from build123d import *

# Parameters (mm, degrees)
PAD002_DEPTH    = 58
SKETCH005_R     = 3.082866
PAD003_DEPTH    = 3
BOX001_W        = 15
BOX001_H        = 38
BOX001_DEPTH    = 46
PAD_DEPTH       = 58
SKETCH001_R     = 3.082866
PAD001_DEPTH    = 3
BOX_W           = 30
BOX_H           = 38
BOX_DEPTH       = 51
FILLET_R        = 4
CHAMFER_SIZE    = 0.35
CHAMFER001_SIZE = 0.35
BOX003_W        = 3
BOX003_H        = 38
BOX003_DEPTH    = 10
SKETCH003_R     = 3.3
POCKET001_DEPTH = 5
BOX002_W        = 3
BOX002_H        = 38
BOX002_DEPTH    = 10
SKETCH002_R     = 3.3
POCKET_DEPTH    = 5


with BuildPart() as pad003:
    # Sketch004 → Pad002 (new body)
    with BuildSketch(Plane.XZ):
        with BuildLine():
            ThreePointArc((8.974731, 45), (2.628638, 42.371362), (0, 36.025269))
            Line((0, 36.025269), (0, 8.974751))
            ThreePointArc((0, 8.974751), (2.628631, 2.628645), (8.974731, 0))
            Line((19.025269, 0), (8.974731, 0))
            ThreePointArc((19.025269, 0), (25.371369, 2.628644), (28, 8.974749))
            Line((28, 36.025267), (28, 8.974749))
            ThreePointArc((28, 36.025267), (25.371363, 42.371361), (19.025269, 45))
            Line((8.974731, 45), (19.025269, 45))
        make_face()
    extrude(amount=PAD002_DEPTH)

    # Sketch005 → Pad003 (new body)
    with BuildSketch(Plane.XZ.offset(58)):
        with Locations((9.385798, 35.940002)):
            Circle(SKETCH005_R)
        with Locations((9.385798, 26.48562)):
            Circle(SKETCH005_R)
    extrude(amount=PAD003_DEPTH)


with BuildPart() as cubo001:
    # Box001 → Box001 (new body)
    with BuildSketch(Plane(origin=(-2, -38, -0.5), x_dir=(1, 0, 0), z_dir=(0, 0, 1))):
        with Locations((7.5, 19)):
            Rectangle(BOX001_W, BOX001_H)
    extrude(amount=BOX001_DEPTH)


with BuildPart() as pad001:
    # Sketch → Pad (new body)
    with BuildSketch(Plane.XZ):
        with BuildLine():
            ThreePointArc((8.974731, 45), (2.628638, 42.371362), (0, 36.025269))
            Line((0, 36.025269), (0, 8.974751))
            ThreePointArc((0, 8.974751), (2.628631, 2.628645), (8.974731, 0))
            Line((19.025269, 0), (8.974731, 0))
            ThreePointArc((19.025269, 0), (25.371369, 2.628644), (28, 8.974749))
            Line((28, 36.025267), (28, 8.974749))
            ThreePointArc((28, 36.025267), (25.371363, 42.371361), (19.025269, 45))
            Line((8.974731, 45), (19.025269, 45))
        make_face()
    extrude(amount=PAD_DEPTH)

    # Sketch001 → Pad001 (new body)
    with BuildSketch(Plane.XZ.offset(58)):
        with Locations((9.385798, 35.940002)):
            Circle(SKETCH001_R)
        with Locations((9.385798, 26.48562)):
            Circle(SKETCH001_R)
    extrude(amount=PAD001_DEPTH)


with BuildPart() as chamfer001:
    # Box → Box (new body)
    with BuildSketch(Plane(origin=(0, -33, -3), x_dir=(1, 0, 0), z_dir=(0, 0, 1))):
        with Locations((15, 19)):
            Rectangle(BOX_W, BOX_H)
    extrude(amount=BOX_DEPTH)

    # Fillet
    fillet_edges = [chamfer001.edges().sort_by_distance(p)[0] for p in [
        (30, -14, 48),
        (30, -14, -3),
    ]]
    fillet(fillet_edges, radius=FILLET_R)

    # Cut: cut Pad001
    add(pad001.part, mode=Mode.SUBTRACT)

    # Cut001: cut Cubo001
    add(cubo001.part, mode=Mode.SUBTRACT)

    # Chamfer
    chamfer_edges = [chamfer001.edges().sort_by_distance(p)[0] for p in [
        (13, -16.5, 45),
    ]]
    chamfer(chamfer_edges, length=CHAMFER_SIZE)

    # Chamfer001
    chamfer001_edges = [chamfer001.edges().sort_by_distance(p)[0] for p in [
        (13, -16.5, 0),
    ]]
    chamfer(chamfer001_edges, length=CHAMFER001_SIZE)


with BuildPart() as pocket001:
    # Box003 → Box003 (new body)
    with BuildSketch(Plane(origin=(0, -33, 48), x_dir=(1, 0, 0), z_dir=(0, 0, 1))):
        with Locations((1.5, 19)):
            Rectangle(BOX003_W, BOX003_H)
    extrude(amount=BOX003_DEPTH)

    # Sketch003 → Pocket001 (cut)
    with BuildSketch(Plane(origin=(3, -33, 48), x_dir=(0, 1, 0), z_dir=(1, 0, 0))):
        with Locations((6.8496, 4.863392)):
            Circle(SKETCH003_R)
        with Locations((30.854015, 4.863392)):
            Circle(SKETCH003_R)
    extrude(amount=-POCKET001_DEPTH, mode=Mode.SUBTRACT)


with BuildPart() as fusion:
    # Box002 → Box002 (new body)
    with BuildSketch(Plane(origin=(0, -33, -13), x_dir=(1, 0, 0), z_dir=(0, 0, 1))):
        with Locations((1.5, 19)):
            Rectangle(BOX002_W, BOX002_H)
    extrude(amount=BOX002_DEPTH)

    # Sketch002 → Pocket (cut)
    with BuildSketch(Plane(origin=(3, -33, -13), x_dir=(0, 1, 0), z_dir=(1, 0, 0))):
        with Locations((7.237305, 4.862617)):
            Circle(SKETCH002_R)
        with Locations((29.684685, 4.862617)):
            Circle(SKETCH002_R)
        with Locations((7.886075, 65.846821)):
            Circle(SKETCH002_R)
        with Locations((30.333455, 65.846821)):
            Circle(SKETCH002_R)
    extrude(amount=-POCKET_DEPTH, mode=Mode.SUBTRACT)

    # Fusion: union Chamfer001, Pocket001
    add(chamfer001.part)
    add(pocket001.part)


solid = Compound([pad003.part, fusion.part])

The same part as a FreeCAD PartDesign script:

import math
import FreeCAD as App
import Part
import Sketcher
from FreeCAD import Vector
Q = App.Units.Quantity


def edges_at(feature, points):
    """Names of the edges that pass closest to the given points."""
    edges = feature.Shape.Edges
    near = lambda p: min(range(len(edges)), key=lambda i: edges[i].distToShape(Part.Vertex(*p))[0])
    return sorted({f"Edge{near(p) + 1}" for p in points})

doc = App.newDocument("Part")
body = doc.addObject("PartDesign::Body", "Body")

# Sketch on XZ plane
sketch1 = doc.addObject("Sketcher::SketchObject", "Sketch")
body.addObject(sketch1)
sketch1.AttachmentSupport = (doc.XZ_Plane, [""])
sketch1.MapMode = "FlatFace"
sketch1.addGeometry(Part.ArcOfCircle(Part.Circle(Vector(9, 36, 0), Vector(0, 0, 1), 9), math.radians(90), math.radians(180)), False)
sketch1.addGeometry(Part.LineSegment(Vector(0, 36, 0), Vector(0, 9, 0)), False)
sketch1.addGeometry(Part.ArcOfCircle(Part.Circle(Vector(9, 9, 0), Vector(0, 0, 1), 9), math.radians(180), math.radians(270)), False)
sketch1.addGeometry(Part.LineSegment(Vector(9, 0, 0), Vector(19, 0, 0)), False)
sketch1.addGeometry(Part.ArcOfCircle(Part.Circle(Vector(19, 9, 0), Vector(0, 0, 1), 9), math.radians(-90), math.radians(0)), False)
sketch1.addGeometry(Part.LineSegment(Vector(28, 9, 0), Vector(28, 36, 0)), False)
sketch1.addGeometry(Part.ArcOfCircle(Part.Circle(Vector(19, 36, 0), Vector(0, 0, 1), 9), math.radians(0), math.radians(90)), False)
sketch1.addGeometry(Part.LineSegment(Vector(19, 45, 0), Vector(9, 45, 0)), False)
sketch1.addConstraint(Sketcher.Constraint("Tangent", 0, 2, 1, 1))
sketch1.addConstraint(Sketcher.Constraint("Coincident", 1, 2, 2, 1))
sketch1.addConstraint(Sketcher.Constraint("Tangent", 2, 2, 3, 1))
sketch1.addConstraint(Sketcher.Constraint("Tangent", 3, 2, 4, 1))
sketch1.addConstraint(Sketcher.Constraint("Coincident", 4, 2, 5, 1))
sketch1.addConstraint(Sketcher.Constraint("Tangent", 5, 2, 6, 1))
sketch1.addConstraint(Sketcher.Constraint("Tangent", 6, 2, 7, 1))
sketch1.addConstraint(Sketcher.Constraint("Tangent", 7, 2, 0, 1))
sketch1.addConstraint(Sketcher.Constraint("Vertical", 1))
sketch1.addConstraint(Sketcher.Constraint("Horizontal", 3))
sketch1.addConstraint(Sketcher.Constraint("Vertical", 5))
sketch1.addConstraint(Sketcher.Constraint("Horizontal", 7))
sketch1.addConstraint(Sketcher.Constraint("Equal", 0, 2))
sketch1.addConstraint(Sketcher.Constraint("Equal", 2, 4))
sketch1.addConstraint(Sketcher.Constraint("Equal", 4, 6))
sketch1.addConstraint(Sketcher.Constraint("PointOnObject", 0, 2, -2))
sketch1.addConstraint(Sketcher.Constraint("PointOnObject", 2, 2, -1))
sketch1.addConstraint(Sketcher.Constraint("Equal", 1, 5))
sketch1.addConstraint(Sketcher.Constraint("DistanceX", -1, 1, 4, 2, Q("28 mm")))
sketch1.addConstraint(Sketcher.Constraint("DistanceY", -1, 1, 6, 2, Q("45 mm")))
sketch1.addConstraint(Sketcher.Constraint("Radius", 0, Q("8.974732 mm")))
sketch1.addConstraint(Sketcher.Constraint("DistanceY", 1, 2, 1, 1, Q("27.050518 mm")))
pad1 = doc.addObject("PartDesign::Pad", "Pad")
body.addObject(pad1)
pad1.Profile = sketch1
pad1.Length = 58

# Sketch on XZ plane
sketch2 = doc.addObject("Sketcher::SketchObject", "Sketch001")
body.addObject(sketch2)
sketch2.AttachmentSupport = (doc.XZ_Plane, [""])
sketch2.MapMode = "FlatFace"
sketch2.AttachmentOffset = App.Placement(Vector(0, 0, 58), App.Rotation())
sketch2.addGeometry(Part.Circle(Vector(9.4, 35.9, 0), Vector(0, 0, 1), 3.1), False)
sketch2.addGeometry(Part.Circle(Vector(9.4, 26.5, 0), Vector(0, 0, 1), 3.1), False)
sketch2.addConstraint(Sketcher.Constraint("Equal", 0, 1))
sketch2.addConstraint(Sketcher.Constraint("Vertical", 0, 3, 1, 3))
sketch2.addConstraint(Sketcher.Constraint("Diameter", 0, Q("6.165732 mm")))
sketch2.addConstraint(Sketcher.Constraint("DistanceY", -1, 1, 1, 3, Q("26.48562 mm")))
sketch2.addConstraint(Sketcher.Constraint("DistanceY", 1, 3, 0, 3, Q("9.454382 mm")))
sketch2.addConstraint(Sketcher.Constraint("DistanceX", -1, 1, 0, 3, Q("9.385798 mm")))
pad2 = doc.addObject("PartDesign::Pad", "Pad001")
body.addObject(pad2)
pad2.Profile = sketch2
pad2.Length = 3
body2 = doc.addObject("PartDesign::Body", "Body001")

# Sketch on XY plane
sketch3 = doc.addObject("Sketcher::SketchObject", "Sketch002")
body2.addObject(sketch3)
sketch3.AttachmentSupport = (doc.getObject("XY_Plane001"), [""])
sketch3.MapMode = "FlatFace"
sketch3.AttachmentOffset = App.Placement(Vector(0, 0, -0.5), App.Rotation())
sketch3.addGeometry(Part.LineSegment(Vector(-2, 0, 0), Vector(-2, -38, 0)), False)
sketch3.addGeometry(Part.LineSegment(Vector(-2, -38, 0), Vector(13, -38, 0)), False)
sketch3.addGeometry(Part.LineSegment(Vector(13, -38, 0), Vector(13, 0, 0)), False)
sketch3.addGeometry(Part.LineSegment(Vector(13, 0, 0), Vector(-2, 0, 0)), False)
sketch3.addConstraint(Sketcher.Constraint("Coincident", 0, 2, 1, 1))
sketch3.addConstraint(Sketcher.Constraint("Coincident", 1, 2, 2, 1))
sketch3.addConstraint(Sketcher.Constraint("Coincident", 2, 2, 3, 1))
sketch3.addConstraint(Sketcher.Constraint("Coincident", 3, 2, 0, 1))
sketch3.addConstraint(Sketcher.Constraint("Vertical", 0))
sketch3.addConstraint(Sketcher.Constraint("Horizontal", 1))
sketch3.addConstraint(Sketcher.Constraint("Vertical", 2))
sketch3.addConstraint(Sketcher.Constraint("Horizontal", 3))
sketch3.addConstraint(Sketcher.Constraint("PointOnObject", 2, 2, -1))
sketch3.addConstraint(Sketcher.Constraint("DistanceX", 1, 1, 1, 2, Q("15 mm")))
sketch3.addConstraint(Sketcher.Constraint("DistanceY", 0, 2, 0, 1, Q("38 mm")))
sketch3.addConstraint(Sketcher.Constraint("DistanceX", 0, 2, -1, 1, Q("2 mm")))
pad3 = doc.addObject("PartDesign::Pad", "Pad002")
body2.addObject(pad3)
pad3.Profile = sketch3
pad3.Length = 46
body3 = doc.addObject("PartDesign::Body", "Body002")

# Sketch on XZ plane
sketch4 = doc.addObject("Sketcher::SketchObject", "Sketch003")
body3.addObject(sketch4)
sketch4.AttachmentSupport = (doc.getObject("XZ_Plane002"), [""])
sketch4.MapMode = "FlatFace"
sketch4.addGeometry(Part.ArcOfCircle(Part.Circle(Vector(9, 36, 0), Vector(0, 0, 1), 9), math.radians(90), math.radians(180)), False)
sketch4.addGeometry(Part.LineSegment(Vector(0, 36, 0), Vector(0, 9, 0)), False)
sketch4.addGeometry(Part.ArcOfCircle(Part.Circle(Vector(9, 9, 0), Vector(0, 0, 1), 9), math.radians(180), math.radians(270)), False)
sketch4.addGeometry(Part.LineSegment(Vector(9, 0, 0), Vector(19, 0, 0)), False)
sketch4.addGeometry(Part.ArcOfCircle(Part.Circle(Vector(19, 9, 0), Vector(0, 0, 1), 9), math.radians(-90), math.radians(0)), False)
sketch4.addGeometry(Part.LineSegment(Vector(28, 9, 0), Vector(28, 36, 0)), False)
sketch4.addGeometry(Part.ArcOfCircle(Part.Circle(Vector(19, 36, 0), Vector(0, 0, 1), 9), math.radians(0), math.radians(90)), False)
sketch4.addGeometry(Part.LineSegment(Vector(19, 45, 0), Vector(9, 45, 0)), False)
sketch4.addConstraint(Sketcher.Constraint("Tangent", 0, 2, 1, 1))
sketch4.addConstraint(Sketcher.Constraint("Coincident", 1, 2, 2, 1))
sketch4.addConstraint(Sketcher.Constraint("Tangent", 2, 2, 3, 1))
sketch4.addConstraint(Sketcher.Constraint("Tangent", 3, 2, 4, 1))
sketch4.addConstraint(Sketcher.Constraint("Coincident", 4, 2, 5, 1))
sketch4.addConstraint(Sketcher.Constraint("Tangent", 5, 2, 6, 1))
sketch4.addConstraint(Sketcher.Constraint("Tangent", 6, 2, 7, 1))
sketch4.addConstraint(Sketcher.Constraint("Tangent", 7, 2, 0, 1))
sketch4.addConstraint(Sketcher.Constraint("Vertical", 1))
sketch4.addConstraint(Sketcher.Constraint("Horizontal", 3))
sketch4.addConstraint(Sketcher.Constraint("Vertical", 5))
sketch4.addConstraint(Sketcher.Constraint("Horizontal", 7))
sketch4.addConstraint(Sketcher.Constraint("Equal", 0, 2))
sketch4.addConstraint(Sketcher.Constraint("Equal", 2, 4))
sketch4.addConstraint(Sketcher.Constraint("Equal", 4, 6))
sketch4.addConstraint(Sketcher.Constraint("PointOnObject", 0, 2, -2))
sketch4.addConstraint(Sketcher.Constraint("PointOnObject", 2, 2, -1))
sketch4.addConstraint(Sketcher.Constraint("Equal", 1, 5))
sketch4.addConstraint(Sketcher.Constraint("DistanceX", -1, 1, 4, 2, Q("28 mm")))
sketch4.addConstraint(Sketcher.Constraint("DistanceY", -1, 1, 6, 2, Q("45 mm")))
sketch4.addConstraint(Sketcher.Constraint("Radius", 0, Q("8.974732 mm")))
sketch4.addConstraint(Sketcher.Constraint("DistanceY", 1, 2, 1, 1, Q("27.050518 mm")))
pad4 = doc.addObject("PartDesign::Pad", "Pad003")
body3.addObject(pad4)
pad4.Profile = sketch4
pad4.Length = 58

# Sketch on XZ plane
sketch5 = doc.addObject("Sketcher::SketchObject", "Sketch004")
body3.addObject(sketch5)
sketch5.AttachmentSupport = (doc.getObject("XZ_Plane002"), [""])
sketch5.MapMode = "FlatFace"
sketch5.AttachmentOffset = App.Placement(Vector(0, 0, 58), App.Rotation())
sketch5.addGeometry(Part.Circle(Vector(9.4, 35.9, 0), Vector(0, 0, 1), 3.1), False)
sketch5.addGeometry(Part.Circle(Vector(9.4, 26.5, 0), Vector(0, 0, 1), 3.1), False)
sketch5.addConstraint(Sketcher.Constraint("Equal", 0, 1))
sketch5.addConstraint(Sketcher.Constraint("Vertical", 0, 3, 1, 3))
sketch5.addConstraint(Sketcher.Constraint("Diameter", 0, Q("6.165732 mm")))
sketch5.addConstraint(Sketcher.Constraint("DistanceY", -1, 1, 1, 3, Q("26.48562 mm")))
sketch5.addConstraint(Sketcher.Constraint("DistanceY", 1, 3, 0, 3, Q("9.454382 mm")))
sketch5.addConstraint(Sketcher.Constraint("DistanceX", -1, 1, 0, 3, Q("9.385798 mm")))
pad5 = doc.addObject("PartDesign::Pad", "Pad004")
body3.addObject(pad5)
pad5.Profile = sketch5
pad5.Length = 3
body4 = doc.addObject("PartDesign::Body", "Body003")

# Sketch on XY plane
sketch6 = doc.addObject("Sketcher::SketchObject", "Sketch005")
body4.addObject(sketch6)
sketch6.AttachmentSupport = (doc.getObject("XY_Plane003"), [""])
sketch6.MapMode = "FlatFace"
sketch6.AttachmentOffset = App.Placement(Vector(0, 0, -3), App.Rotation())
sketch6.addGeometry(Part.LineSegment(Vector(0, 5, 0), Vector(0, -33, 0)), False)
sketch6.addGeometry(Part.LineSegment(Vector(0, -33, 0), Vector(30, -33, 0)), False)
sketch6.addGeometry(Part.LineSegment(Vector(30, -33, 0), Vector(30, 5, 0)), False)
sketch6.addGeometry(Part.LineSegment(Vector(30, 5, 0), Vector(0, 5, 0)), False)
sketch6.addConstraint(Sketcher.Constraint("Coincident", 0, 2, 1, 1))
sketch6.addConstraint(Sketcher.Constraint("Coincident", 1, 2, 2, 1))
sketch6.addConstraint(Sketcher.Constraint("Coincident", 2, 2, 3, 1))
sketch6.addConstraint(Sketcher.Constraint("Coincident", 3, 2, 0, 1))
sketch6.addConstraint(Sketcher.Constraint("Vertical", 0))
sketch6.addConstraint(Sketcher.Constraint("Horizontal", 1))
sketch6.addConstraint(Sketcher.Constraint("Vertical", 2))
sketch6.addConstraint(Sketcher.Constraint("Horizontal", 3))
sketch6.addConstraint(Sketcher.Constraint("PointOnObject", 0, 2, -2))
sketch6.addConstraint(Sketcher.Constraint("DistanceX", 1, 1, 1, 2, Q("30 mm")))
sketch6.addConstraint(Sketcher.Constraint("DistanceY", 0, 2, 0, 1, Q("38 mm")))
sketch6.addConstraint(Sketcher.Constraint("DistanceY", 0, 2, -1, 1, Q("33 mm")))
pad6 = doc.addObject("PartDesign::Pad", "Pad005")
body4.addObject(pad6)
pad6.Profile = sketch6
pad6.Length = 51
doc.recompute()

fillet = doc.addObject("PartDesign::Fillet", "Fillet")
body4.addObject(fillet)
fillet.Base = (pad6, edges_at(pad6, [(30, -14, 48), (30, -14, -3)]))
fillet.Radius = 4
doc.recompute()

boolean = doc.addObject("PartDesign::Boolean", "Boolean")
body4.addObject(boolean)
boolean.Type = "Cut"
boolean.addObjects([body3])
doc.recompute()

boolean2 = doc.addObject("PartDesign::Boolean", "Boolean001")
body4.addObject(boolean2)
boolean2.Type = "Cut"
boolean2.addObjects([body2])
doc.recompute()

chamfer = doc.addObject("PartDesign::Chamfer", "Chamfer")
body4.addObject(chamfer)
chamfer.Base = (boolean2, edges_at(boolean2, [(13, -16.5, 45)]))
chamfer.Size = 0.35
doc.recompute()

chamfer2 = doc.addObject("PartDesign::Chamfer", "Chamfer001")
body4.addObject(chamfer2)
chamfer2.Base = (chamfer, edges_at(chamfer, [(13, -16.5, 0)]))
chamfer2.Size = 0.35
body5 = doc.addObject("PartDesign::Body", "Body004")

# Sketch on XY plane
sketch7 = doc.addObject("Sketcher::SketchObject", "Sketch006")
body5.addObject(sketch7)
sketch7.AttachmentSupport = (doc.getObject("XY_Plane004"), [""])
sketch7.MapMode = "FlatFace"
sketch7.AttachmentOffset = App.Placement(Vector(0, 0, 48), App.Rotation())
sketch7.addGeometry(Part.LineSegment(Vector(0, 5, 0), Vector(0, -33, 0)), False)
sketch7.addGeometry(Part.LineSegment(Vector(0, -33, 0), Vector(3, -33, 0)), False)
sketch7.addGeometry(Part.LineSegment(Vector(3, -33, 0), Vector(3, 5, 0)), False)
sketch7.addGeometry(Part.LineSegment(Vector(3, 5, 0), Vector(0, 5, 0)), False)
sketch7.addConstraint(Sketcher.Constraint("Coincident", 0, 2, 1, 1))
sketch7.addConstraint(Sketcher.Constraint("Coincident", 1, 2, 2, 1))
sketch7.addConstraint(Sketcher.Constraint("Coincident", 2, 2, 3, 1))
sketch7.addConstraint(Sketcher.Constraint("Coincident", 3, 2, 0, 1))
sketch7.addConstraint(Sketcher.Constraint("Vertical", 0))
sketch7.addConstraint(Sketcher.Constraint("Horizontal", 1))
sketch7.addConstraint(Sketcher.Constraint("Vertical", 2))
sketch7.addConstraint(Sketcher.Constraint("Horizontal", 3))
sketch7.addConstraint(Sketcher.Constraint("PointOnObject", 0, 2, -2))
sketch7.addConstraint(Sketcher.Constraint("DistanceX", 1, 1, 1, 2, Q("3 mm")))
sketch7.addConstraint(Sketcher.Constraint("DistanceY", 0, 2, 0, 1, Q("38 mm")))
sketch7.addConstraint(Sketcher.Constraint("DistanceY", 0, 2, -1, 1, Q("33 mm")))
pad7 = doc.addObject("PartDesign::Pad", "Pad006")
body5.addObject(pad7)
pad7.Profile = sketch7
pad7.Length = 10

# Sketch on YZ plane
sketch8 = doc.addObject("Sketcher::SketchObject", "Sketch007")
body5.addObject(sketch8)
sketch8.AttachmentSupport = (doc.getObject("YZ_Plane004"), [""])
sketch8.MapMode = "FlatFace"
sketch8.AttachmentOffset = App.Placement(Vector(0, 0, 3), App.Rotation())
sketch8.addGeometry(Part.Circle(Vector(-26.2, 52.9, 0), Vector(0, 0, 1), 3.3), False)
sketch8.addGeometry(Part.Circle(Vector(-2.1, 52.9, 0), Vector(0, 0, 1), 3.3), False)
sketch8.addConstraint(Sketcher.Constraint("Equal", 0, 1))
sketch8.addConstraint(Sketcher.Constraint("Horizontal", 0, 3, 1, 3))
sketch8.addConstraint(Sketcher.Constraint("Diameter", 0, Q("6.6 mm")))
sketch8.addConstraint(Sketcher.Constraint("DistanceX", 0, 3, -1, 1, Q("26.1504 mm")))
sketch8.addConstraint(Sketcher.Constraint("DistanceY", -1, 1, 0, 3, Q("52.863392 mm")))
sketch8.addConstraint(Sketcher.Constraint("DistanceX", 1, 3, -1, 1, Q("2.145985 mm")))
pocket1 = doc.addObject("PartDesign::Pocket", "Pocket")
body5.addObject(pocket1)
pocket1.Profile = sketch8
pocket1.Length = 5
body6 = doc.addObject("PartDesign::Body", "Body005")

# Sketch on XY plane
sketch9 = doc.addObject("Sketcher::SketchObject", "Sketch008")
body6.addObject(sketch9)
sketch9.AttachmentSupport = (doc.getObject("XY_Plane005"), [""])
sketch9.MapMode = "FlatFace"
sketch9.AttachmentOffset = App.Placement(Vector(0, 0, -13), App.Rotation())
sketch9.addGeometry(Part.LineSegment(Vector(0, 5, 0), Vector(0, -33, 0)), False)
sketch9.addGeometry(Part.LineSegment(Vector(0, -33, 0), Vector(3, -33, 0)), False)
sketch9.addGeometry(Part.LineSegment(Vector(3, -33, 0), Vector(3, 5, 0)), False)
sketch9.addGeometry(Part.LineSegment(Vector(3, 5, 0), Vector(0, 5, 0)), False)
sketch9.addConstraint(Sketcher.Constraint("Coincident", 0, 2, 1, 1))
sketch9.addConstraint(Sketcher.Constraint("Coincident", 1, 2, 2, 1))
sketch9.addConstraint(Sketcher.Constraint("Coincident", 2, 2, 3, 1))
sketch9.addConstraint(Sketcher.Constraint("Coincident", 3, 2, 0, 1))
sketch9.addConstraint(Sketcher.Constraint("Vertical", 0))
sketch9.addConstraint(Sketcher.Constraint("Horizontal", 1))
sketch9.addConstraint(Sketcher.Constraint("Vertical", 2))
sketch9.addConstraint(Sketcher.Constraint("Horizontal", 3))
sketch9.addConstraint(Sketcher.Constraint("PointOnObject", 0, 2, -2))
sketch9.addConstraint(Sketcher.Constraint("DistanceX", 1, 1, 1, 2, Q("3 mm")))
sketch9.addConstraint(Sketcher.Constraint("DistanceY", 0, 2, 0, 1, Q("38 mm")))
sketch9.addConstraint(Sketcher.Constraint("DistanceY", 0, 2, -1, 1, Q("33 mm")))
pad8 = doc.addObject("PartDesign::Pad", "Pad007")
body6.addObject(pad8)
pad8.Profile = sketch9
pad8.Length = 10

# Sketch on YZ plane
sketch10 = doc.addObject("Sketcher::SketchObject", "Sketch009")
body6.addObject(sketch10)
sketch10.AttachmentSupport = (doc.getObject("YZ_Plane005"), [""])
sketch10.MapMode = "FlatFace"
sketch10.AttachmentOffset = App.Placement(Vector(0, 0, 3), App.Rotation())
sketch10.addGeometry(Part.Circle(Vector(-25.8, -8.1, 0), Vector(0, 0, 1), 3.3), False)
sketch10.addGeometry(Part.Circle(Vector(-3.3, -8.1, 0), Vector(0, 0, 1), 3.3), False)
sketch10.addGeometry(Part.Circle(Vector(-25.1, 52.8, 0), Vector(0, 0, 1), 3.3), False)
sketch10.addGeometry(Part.Circle(Vector(-2.7, 52.8, 0), Vector(0, 0, 1), 3.3), False)
sketch10.addConstraint(Sketcher.Constraint("Equal", 0, 1))
sketch10.addConstraint(Sketcher.Constraint("Equal", 1, 2))
sketch10.addConstraint(Sketcher.Constraint("Equal", 2, 3))
sketch10.addConstraint(Sketcher.Constraint("Horizontal", 0, 3, 1, 3))
sketch10.addConstraint(Sketcher.Constraint("Horizontal", 2, 3, 3, 3))
sketch10.addConstraint(Sketcher.Constraint("Diameter", 0, Q("6.6 mm")))
sketch10.addConstraint(Sketcher.Constraint("DistanceY", -1, 1, 2, 3, Q("52.846821 mm")))
sketch10.addConstraint(Sketcher.Constraint("DistanceX", 0, 3, 1, 3, Q("22.44738 mm")))
sketch10.addConstraint(Sketcher.Constraint("DistanceX", 0, 3, 2, 3, Q("0.64877 mm")))
sketch10.addConstraint(Sketcher.Constraint("DistanceX", 2, 3, 3, 3, Q("22.44738 mm")))
sketch10.addConstraint(Sketcher.Constraint("DistanceX", 0, 3, -1, 1, Q("25.762695 mm")))
sketch10.addConstraint(Sketcher.Constraint("DistanceY", 0, 3, -1, 1, Q("8.137383 mm")))
pocket2 = doc.addObject("PartDesign::Pocket", "Pocket001")
body6.addObject(pocket2)
pocket2.Profile = sketch10
pocket2.Length = 5
doc.recompute()

boolean3 = doc.addObject("PartDesign::Boolean", "Boolean002")
body6.addObject(boolean3)
boolean3.Type = "Fuse"
boolean3.addObjects([body4])
doc.recompute()

boolean4 = doc.addObject("PartDesign::Boolean", "Boolean003")
body6.addObject(boolean4)
boolean4.Type = "Fuse"
boolean4.addObjects([body5])

doc.recompute()
